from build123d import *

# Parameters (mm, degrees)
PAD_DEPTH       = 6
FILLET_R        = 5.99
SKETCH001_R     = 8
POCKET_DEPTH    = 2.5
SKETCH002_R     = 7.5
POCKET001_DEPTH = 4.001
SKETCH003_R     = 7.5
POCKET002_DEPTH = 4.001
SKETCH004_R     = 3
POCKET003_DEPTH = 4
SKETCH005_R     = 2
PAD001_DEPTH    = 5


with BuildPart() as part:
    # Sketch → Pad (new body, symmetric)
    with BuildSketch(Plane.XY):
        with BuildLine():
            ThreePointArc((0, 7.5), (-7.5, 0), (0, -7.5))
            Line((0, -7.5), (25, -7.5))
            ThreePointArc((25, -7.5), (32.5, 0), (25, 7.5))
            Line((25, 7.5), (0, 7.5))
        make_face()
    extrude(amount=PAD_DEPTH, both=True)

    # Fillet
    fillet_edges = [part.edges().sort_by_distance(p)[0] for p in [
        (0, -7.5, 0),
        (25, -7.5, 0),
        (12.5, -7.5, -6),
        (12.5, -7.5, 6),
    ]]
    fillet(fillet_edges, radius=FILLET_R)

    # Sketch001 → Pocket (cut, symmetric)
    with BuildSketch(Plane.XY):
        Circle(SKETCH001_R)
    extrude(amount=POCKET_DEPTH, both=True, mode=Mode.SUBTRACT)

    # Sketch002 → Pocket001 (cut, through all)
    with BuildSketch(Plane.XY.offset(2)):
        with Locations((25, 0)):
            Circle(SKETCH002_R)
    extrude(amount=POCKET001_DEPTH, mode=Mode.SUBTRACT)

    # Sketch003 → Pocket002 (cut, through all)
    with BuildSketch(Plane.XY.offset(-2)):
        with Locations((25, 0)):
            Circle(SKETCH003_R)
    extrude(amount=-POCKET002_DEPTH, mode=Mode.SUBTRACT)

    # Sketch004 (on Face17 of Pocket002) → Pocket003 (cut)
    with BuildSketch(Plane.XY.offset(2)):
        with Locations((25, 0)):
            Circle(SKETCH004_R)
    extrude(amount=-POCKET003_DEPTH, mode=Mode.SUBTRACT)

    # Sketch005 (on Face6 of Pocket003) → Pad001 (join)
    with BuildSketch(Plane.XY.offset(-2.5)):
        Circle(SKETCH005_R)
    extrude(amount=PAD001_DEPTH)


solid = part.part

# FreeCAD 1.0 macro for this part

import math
import FreeCAD as App
import Part
import Sketcher
Q = App.Units.Quantity


def edges_at(feature, points):
    """Names of the edges that pass closest to the given points."""
    edges = feature.Shape.Edges
    near = lambda p: min(range(len(edges)), key=lambda i: edges[i].distToShape(Part.Vertex(*p))[0])
    return sorted({f"Edge{near(p) + 1}" for p in points})

doc = App.newDocument("Part")
params = doc.addObject("Spreadsheet::Sheet", "Params")
for row, (alias, value) in enumerate([
    ("sketch1_radius", "7.5 mm"),
    ("sketch1_width", "25 mm"),
    ("pad1_length", "12 mm"),
    ("fillet_radius", "5.99 mm"),
    ("sketch2_diameter", "16 mm"),
    ("pocket1_length", "5 mm"),
    ("sketch3_diameter", "15 mm"),
    ("sketch4_diameter", "15 mm"),
    ("sketch5_diameter", "6 mm"),
    ("pocket4_length", "4 mm"),
    ("sketch6_diameter", "4 mm"),
    ("pad2_length", "5 mm"),
], start=1):
    params.set(f"A{row}", alias)
    params.set(f"B{row}", "=" + value)
    params.setAlias(f"B{row}", alias)

body = doc.addObject("PartDesign::Body", "Body")

sketch1 = body.newObject("Sketcher::SketchObject", "Sketch")
sketch1.AttachmentSupport = (doc.getObject("XY_Plane"), [""])
sketch1.MapMode = "FlatFace"
sketch1.addGeometry([
    Part.ArcOfCircle(Part.Circle(App.Vector(0, 0, 0), App.Vector(0, 0, 1), 7.5), math.radians(90), math.radians(270)),
    Part.LineSegment(App.Vector(0, -7.5, 0), App.Vector(25, -7.5, 0)),
    Part.ArcOfCircle(Part.Circle(App.Vector(25, 0, 0), App.Vector(0, 0, 1), 7.5), math.radians(-90), math.radians(90)),
    Part.LineSegment(App.Vector(25, 7.5, 0), App.Vector(0, 7.5, 0)),
], False)
sketch1.addConstraint([
    Sketcher.Constraint("Tangent", 0, 2, 1, 1),
    Sketcher.Constraint("Tangent", 1, 2, 2, 1),
    Sketcher.Constraint("Tangent", 2, 2, 3, 1),
    Sketcher.Constraint("Tangent", 3, 2, 0, 1),
    Sketcher.Constraint("Horizontal", 1),
    Sketcher.Constraint("Horizontal", 3),
    Sketcher.Constraint("Coincident", 0, 3, -1, 1),
    Sketcher.Constraint("Radius", 0, Q("7.5 mm")),
    Sketcher.Constraint("DistanceX", 1, 1, 1, 2, Q("25 mm")),
])
sketch1.setExpression("Constraints[7]", "Params.sketch1_radius")
sketch1.setExpression("Constraints[8]", "Params.sketch1_width")
pad1 = body.newObject("PartDesign::Pad", "Pad")
pad1.Profile = sketch1
pad1.setExpression("Length", "Params.pad1_length")
pad1.Midplane = True
doc.recompute()

fillet = body.newObject("PartDesign::Fillet", "Fillet")
fillet.Base = (pad1, edges_at(pad1, [
    (0, -7.5, 0),
    (25, -7.5, 0),
    (12.5, -7.5, -6),
    (12.5, -7.5, 6),
]))
fillet.setExpression("Radius", "Params.fillet_radius")

sketch2 = body.newObject("Sketcher::SketchObject", "Sketch001")
sketch2.AttachmentSupport = (doc.getObject("XY_Plane"), [""])
sketch2.MapMode = "FlatFace"
sketch2.addGeometry(Part.Circle(App.Vector(0, 0, 0), App.Vector(0, 0, 1), 8), False)
sketch2.addConstraint([
    Sketcher.Constraint("Coincident", 0, 3, -1, 1),
    Sketcher.Constraint("Diameter", 0, Q("16 mm")),
])
sketch2.setExpression("Constraints[1]", "Params.sketch2_diameter")
pocket1 = body.newObject("PartDesign::Pocket", "Pocket")
pocket1.Profile = sketch2
pocket1.setExpression("Length", "Params.pocket1_length")
pocket1.Midplane = True

sketch3 = body.newObject("Sketcher::SketchObject", "Sketch002")
sketch3.AttachmentSupport = (doc.getObject("XY_Plane"), [""])
sketch3.MapMode = "FlatFace"
sketch3.AttachmentOffset = App.Placement(App.Vector(0, 0, 2), App.Rotation())
sketch3.addGeometry(Part.Circle(App.Vector(25, 0, 0), App.Vector(0, 0, 1), 7.5), False)
sketch3.addConstraint([
    Sketcher.Constraint("PointOnObject", 0, 3, -1),
    Sketcher.Constraint("Diameter", 0, Q("15 mm")),
    Sketcher.Constraint("DistanceX", -1, 1, 0, 3, Q("25 mm")),
])
sketch3.setExpression("Constraints[1]", "Params.sketch3_diameter")
pocket2 = body.newObject("PartDesign::Pocket", "Pocket001")
pocket2.Profile = sketch3
pocket2.Type = "ThroughAll"
pocket2.Reversed = True

sketch4 = body.newObject("Sketcher::SketchObject", "Sketch003")
sketch4.AttachmentSupport = (doc.getObject("XY_Plane"), [""])
sketch4.MapMode = "FlatFace"
sketch4.AttachmentOffset = App.Placement(App.Vector(0, 0, -2), App.Rotation())
sketch4.addGeometry(Part.Circle(App.Vector(25, 0, 0), App.Vector(0, 0, 1), 7.5), False)
sketch4.addConstraint([
    Sketcher.Constraint("PointOnObject", 0, 3, -1),
    Sketcher.Constraint("Diameter", 0, Q("15 mm")),
    Sketcher.Constraint("DistanceX", -1, 1, 0, 3, Q("25 mm")),
])
sketch4.setExpression("Constraints[1]", "Params.sketch4_diameter")
pocket3 = body.newObject("PartDesign::Pocket", "Pocket002")
pocket3.Profile = sketch4
pocket3.Type = "ThroughAll"

sketch5 = body.newObject("Sketcher::SketchObject", "Sketch004")
sketch5.AttachmentSupport = (doc.getObject("XY_Plane"), [""])
sketch5.MapMode = "FlatFace"
sketch5.AttachmentOffset = App.Placement(App.Vector(0, 0, 2), App.Rotation())
sketch5.addGeometry(Part.Circle(App.Vector(25, 0, 0), App.Vector(0, 0, 1), 3), False)
sketch5.addConstraint([
    Sketcher.Constraint("PointOnObject", 0, 3, -1),
    Sketcher.Constraint("Diameter", 0, Q("6 mm")),
    Sketcher.Constraint("DistanceX", -1, 1, 0, 3, Q("25 mm")),
])
sketch5.setExpression("Constraints[1]", "Params.sketch5_diameter")
pocket4 = body.newObject("PartDesign::Pocket", "Pocket003")
pocket4.Profile = sketch5
pocket4.setExpression("Length", "Params.pocket4_length")

sketch6 = body.newObject("Sketcher::SketchObject", "Sketch005")
sketch6.AttachmentSupport = (doc.getObject("XY_Plane"), [""])
sketch6.MapMode = "FlatFace"
sketch6.AttachmentOffset = App.Placement(App.Vector(0, 0, -2.5), App.Rotation())
sketch6.addGeometry(Part.Circle(App.Vector(0, 0, 0), App.Vector(0, 0, 1), 2), False)
sketch6.addConstraint([
    Sketcher.Constraint("Coincident", 0, 3, -1, 1),
    Sketcher.Constraint("Diameter", 0, Q("4 mm")),
])
sketch6.setExpression("Constraints[1]", "Params.sketch6_diameter")
pad2 = body.newObject("PartDesign::Pad", "Pad001")
pad2.Profile = sketch6
pad2.setExpression("Length", "Params.pad2_length")

doc.recompute()
